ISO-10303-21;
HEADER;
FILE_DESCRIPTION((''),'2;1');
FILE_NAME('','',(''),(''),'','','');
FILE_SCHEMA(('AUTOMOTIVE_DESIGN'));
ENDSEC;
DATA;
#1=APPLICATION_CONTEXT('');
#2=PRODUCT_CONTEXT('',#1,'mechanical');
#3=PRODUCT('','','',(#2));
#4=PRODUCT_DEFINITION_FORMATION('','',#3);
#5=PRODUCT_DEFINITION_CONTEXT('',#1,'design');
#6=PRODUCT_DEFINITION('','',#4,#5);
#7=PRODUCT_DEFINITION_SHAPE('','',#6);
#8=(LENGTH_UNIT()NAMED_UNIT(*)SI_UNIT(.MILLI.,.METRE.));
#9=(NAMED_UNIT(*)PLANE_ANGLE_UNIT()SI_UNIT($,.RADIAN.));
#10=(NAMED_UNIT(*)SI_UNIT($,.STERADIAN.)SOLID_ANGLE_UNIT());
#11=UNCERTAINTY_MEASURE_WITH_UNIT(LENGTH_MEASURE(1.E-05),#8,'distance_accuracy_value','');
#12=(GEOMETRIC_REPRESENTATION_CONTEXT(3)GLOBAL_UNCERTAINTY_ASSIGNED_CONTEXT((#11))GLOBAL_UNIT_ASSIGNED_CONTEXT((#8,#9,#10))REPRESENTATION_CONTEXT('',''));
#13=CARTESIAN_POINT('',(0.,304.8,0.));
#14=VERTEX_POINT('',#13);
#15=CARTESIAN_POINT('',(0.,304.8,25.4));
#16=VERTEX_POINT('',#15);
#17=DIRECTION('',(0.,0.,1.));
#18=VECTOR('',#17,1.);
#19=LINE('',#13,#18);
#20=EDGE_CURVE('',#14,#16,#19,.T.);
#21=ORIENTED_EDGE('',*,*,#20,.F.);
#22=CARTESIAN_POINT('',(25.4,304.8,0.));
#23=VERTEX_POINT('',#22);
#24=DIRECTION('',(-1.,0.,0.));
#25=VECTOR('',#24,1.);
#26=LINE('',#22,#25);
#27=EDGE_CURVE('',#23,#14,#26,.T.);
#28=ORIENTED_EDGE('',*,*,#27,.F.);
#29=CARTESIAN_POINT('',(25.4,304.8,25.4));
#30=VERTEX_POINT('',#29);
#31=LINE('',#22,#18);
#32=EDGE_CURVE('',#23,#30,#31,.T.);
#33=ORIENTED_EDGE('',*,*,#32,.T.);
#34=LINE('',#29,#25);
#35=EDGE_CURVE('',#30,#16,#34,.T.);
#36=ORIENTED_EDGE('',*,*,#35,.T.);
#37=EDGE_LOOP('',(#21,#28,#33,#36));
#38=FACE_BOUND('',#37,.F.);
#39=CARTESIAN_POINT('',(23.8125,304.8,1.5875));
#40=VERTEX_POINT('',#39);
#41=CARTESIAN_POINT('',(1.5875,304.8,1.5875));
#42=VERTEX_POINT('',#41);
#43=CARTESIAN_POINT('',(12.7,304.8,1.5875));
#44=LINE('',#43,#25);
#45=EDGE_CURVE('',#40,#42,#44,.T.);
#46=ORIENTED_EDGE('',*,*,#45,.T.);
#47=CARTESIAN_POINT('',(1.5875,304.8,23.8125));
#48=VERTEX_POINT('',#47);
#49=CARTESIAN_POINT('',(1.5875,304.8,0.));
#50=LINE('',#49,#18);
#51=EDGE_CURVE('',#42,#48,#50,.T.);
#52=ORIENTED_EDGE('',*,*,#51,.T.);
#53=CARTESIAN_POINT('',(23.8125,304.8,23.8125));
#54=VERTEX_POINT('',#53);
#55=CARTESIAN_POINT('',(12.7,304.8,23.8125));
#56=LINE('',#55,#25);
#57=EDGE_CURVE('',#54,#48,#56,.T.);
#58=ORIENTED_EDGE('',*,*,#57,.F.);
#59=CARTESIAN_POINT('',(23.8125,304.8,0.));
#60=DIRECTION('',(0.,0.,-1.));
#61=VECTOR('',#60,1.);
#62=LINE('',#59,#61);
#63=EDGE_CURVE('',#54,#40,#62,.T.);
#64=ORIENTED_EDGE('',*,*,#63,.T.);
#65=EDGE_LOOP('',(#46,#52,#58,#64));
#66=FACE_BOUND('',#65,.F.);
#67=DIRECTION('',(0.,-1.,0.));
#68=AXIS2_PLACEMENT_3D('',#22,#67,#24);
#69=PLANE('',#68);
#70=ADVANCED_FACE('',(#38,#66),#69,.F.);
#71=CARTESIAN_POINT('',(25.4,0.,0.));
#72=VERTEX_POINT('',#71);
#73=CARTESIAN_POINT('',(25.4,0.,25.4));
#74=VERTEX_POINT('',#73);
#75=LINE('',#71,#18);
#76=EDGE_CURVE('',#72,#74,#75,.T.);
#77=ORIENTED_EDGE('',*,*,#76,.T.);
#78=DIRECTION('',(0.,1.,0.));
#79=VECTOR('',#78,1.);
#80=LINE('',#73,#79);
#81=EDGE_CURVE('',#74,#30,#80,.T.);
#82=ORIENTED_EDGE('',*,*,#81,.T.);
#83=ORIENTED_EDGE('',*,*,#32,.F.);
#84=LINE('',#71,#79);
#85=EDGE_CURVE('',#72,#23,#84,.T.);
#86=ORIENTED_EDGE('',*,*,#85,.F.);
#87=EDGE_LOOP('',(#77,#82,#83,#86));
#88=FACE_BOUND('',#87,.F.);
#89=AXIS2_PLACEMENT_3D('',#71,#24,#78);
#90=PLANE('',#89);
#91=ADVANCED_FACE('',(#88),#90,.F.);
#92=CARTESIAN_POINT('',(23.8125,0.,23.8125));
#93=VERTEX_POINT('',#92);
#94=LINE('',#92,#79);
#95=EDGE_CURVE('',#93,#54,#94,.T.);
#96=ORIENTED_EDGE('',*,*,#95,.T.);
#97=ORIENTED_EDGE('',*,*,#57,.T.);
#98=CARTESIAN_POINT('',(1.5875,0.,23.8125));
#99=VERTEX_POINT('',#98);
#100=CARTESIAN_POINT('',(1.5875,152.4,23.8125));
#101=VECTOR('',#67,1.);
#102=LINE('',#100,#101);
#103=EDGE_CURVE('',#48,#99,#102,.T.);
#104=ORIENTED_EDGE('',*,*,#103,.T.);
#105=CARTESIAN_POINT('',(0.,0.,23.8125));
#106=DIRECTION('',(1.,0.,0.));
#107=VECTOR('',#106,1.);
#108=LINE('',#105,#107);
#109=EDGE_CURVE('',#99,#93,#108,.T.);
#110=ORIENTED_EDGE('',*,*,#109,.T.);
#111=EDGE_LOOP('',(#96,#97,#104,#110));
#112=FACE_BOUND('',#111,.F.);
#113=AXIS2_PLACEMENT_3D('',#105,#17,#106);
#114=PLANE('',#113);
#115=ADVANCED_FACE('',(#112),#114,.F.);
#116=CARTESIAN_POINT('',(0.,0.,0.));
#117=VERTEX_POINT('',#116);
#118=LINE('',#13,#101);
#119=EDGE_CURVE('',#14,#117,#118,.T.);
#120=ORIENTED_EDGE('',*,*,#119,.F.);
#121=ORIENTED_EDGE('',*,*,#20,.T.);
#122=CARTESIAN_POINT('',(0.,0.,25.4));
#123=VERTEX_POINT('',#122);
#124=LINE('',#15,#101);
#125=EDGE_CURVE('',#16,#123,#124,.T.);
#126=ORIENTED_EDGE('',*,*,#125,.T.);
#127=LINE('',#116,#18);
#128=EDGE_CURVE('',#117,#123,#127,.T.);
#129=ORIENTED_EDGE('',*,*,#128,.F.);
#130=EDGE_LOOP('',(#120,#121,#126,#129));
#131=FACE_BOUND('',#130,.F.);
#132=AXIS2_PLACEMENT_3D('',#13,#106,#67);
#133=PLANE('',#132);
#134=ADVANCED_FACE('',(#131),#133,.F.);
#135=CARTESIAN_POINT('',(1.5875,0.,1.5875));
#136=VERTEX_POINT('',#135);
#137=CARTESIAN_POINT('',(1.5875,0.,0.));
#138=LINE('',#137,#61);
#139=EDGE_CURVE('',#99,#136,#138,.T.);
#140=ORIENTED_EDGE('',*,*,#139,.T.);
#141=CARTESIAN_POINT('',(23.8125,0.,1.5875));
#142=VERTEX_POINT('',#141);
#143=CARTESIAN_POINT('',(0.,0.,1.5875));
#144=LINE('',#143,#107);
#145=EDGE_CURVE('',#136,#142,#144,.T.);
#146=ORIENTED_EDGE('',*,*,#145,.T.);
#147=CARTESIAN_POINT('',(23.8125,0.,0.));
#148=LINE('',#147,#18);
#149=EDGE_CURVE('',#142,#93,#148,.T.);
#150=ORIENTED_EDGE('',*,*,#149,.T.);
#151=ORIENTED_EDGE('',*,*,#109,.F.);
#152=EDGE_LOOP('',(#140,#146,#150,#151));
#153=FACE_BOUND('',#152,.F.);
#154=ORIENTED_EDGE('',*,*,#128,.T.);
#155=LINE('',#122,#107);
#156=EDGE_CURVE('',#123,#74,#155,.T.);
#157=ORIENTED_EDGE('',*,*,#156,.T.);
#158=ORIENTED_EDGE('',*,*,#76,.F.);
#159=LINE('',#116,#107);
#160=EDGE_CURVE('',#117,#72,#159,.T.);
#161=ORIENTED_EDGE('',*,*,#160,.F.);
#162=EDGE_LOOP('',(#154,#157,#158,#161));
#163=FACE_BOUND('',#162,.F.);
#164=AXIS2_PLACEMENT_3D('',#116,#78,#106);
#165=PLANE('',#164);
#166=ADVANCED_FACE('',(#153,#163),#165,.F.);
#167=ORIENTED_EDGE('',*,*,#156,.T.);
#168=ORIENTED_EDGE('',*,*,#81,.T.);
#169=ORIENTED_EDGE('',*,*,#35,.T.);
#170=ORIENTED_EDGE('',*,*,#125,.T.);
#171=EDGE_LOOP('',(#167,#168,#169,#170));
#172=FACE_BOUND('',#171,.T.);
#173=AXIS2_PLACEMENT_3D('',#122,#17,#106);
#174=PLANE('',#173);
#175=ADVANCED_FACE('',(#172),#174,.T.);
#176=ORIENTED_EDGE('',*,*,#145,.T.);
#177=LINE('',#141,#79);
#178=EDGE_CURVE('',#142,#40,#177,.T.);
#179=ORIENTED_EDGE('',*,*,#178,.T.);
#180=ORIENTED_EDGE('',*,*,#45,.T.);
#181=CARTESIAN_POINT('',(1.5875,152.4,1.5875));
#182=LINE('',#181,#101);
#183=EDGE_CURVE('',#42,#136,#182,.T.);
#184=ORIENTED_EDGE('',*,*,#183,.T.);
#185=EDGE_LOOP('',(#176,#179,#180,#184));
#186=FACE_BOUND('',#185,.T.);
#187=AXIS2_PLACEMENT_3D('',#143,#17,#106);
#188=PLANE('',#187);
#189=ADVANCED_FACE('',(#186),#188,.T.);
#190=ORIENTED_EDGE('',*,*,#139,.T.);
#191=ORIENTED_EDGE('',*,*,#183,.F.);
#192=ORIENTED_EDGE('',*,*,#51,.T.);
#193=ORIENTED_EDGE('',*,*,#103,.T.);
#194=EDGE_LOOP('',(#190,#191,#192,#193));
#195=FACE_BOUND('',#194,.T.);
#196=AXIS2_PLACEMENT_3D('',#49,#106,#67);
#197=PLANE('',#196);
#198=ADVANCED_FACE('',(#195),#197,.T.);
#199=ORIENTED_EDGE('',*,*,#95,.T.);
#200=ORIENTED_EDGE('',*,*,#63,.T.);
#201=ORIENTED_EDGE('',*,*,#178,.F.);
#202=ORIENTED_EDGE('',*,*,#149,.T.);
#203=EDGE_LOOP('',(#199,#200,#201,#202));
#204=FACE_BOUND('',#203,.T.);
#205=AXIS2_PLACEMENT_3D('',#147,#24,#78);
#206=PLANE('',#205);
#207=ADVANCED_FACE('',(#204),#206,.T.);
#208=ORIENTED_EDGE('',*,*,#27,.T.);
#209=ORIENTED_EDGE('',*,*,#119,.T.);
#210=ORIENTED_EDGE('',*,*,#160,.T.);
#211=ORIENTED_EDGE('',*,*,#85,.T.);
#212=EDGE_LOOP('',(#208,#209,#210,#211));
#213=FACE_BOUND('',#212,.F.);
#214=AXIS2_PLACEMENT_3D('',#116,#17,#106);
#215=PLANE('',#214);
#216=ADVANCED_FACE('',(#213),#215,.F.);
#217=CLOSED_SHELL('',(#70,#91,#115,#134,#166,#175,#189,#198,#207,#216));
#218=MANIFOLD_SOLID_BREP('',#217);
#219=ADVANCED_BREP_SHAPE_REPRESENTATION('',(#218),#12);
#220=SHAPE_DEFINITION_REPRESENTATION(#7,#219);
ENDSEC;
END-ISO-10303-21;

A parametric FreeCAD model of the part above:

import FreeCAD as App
import Part
import Sketcher
from FreeCAD import Vector
Q = App.Units.Quantity


def faces_at(feature, points):
    """Names of the faces that lie closest to the given points."""
    faces = feature.Shape.Faces
    near = lambda p: min(range(len(faces)), key=lambda i: faces[i].distToShape(Part.Vertex(*p))[0])
    return sorted({f"Face{near(p) + 1}" for p in points})


def add_polygon(sketch, points):
    """Adds a closed chain of lines whose ends are joined by coincident constraints."""
    first, n = sketch.GeometryCount, len(points)
    for a, b in zip(points, points[1:] + points[:1]):
        sketch.addGeometry(Part.LineSegment(App.Vector(*a, 0), App.Vector(*b, 0)), False)
    for i in range(n):
        sketch.addConstraint(Sketcher.Constraint("Coincident", first + i, 2, first + (i + 1) % n, 1))

doc = App.newDocument("Part")
body = doc.addObject("PartDesign::Body", "Body")

sketch1 = doc.addObject("Sketcher::SketchObject", "Sketch")
body.addObject(sketch1)
sketch1.AttachmentSupport = (doc.XY_Plane, [""])
sketch1.MapMode = "FlatFace"
add_polygon(sketch1, [(0, 305), (0, 0), (25, 0), (25, 305)])
sketch1.addConstraint([
    Sketcher.Constraint("Vertical", 0),
    Sketcher.Constraint("Horizontal", 1),
    Sketcher.Constraint("Vertical", 2),
    Sketcher.Constraint("Horizontal", 3),
    Sketcher.Constraint("Coincident", 0, 2, -1, 1),
    Sketcher.Constraint("DistanceX", 1, 1, 1, 2, Q("1 in")),
    Sketcher.Constraint("DistanceY", 0, 2, 0, 1, Q("12 in")),
])
pad1 = doc.addObject("PartDesign::Pad", "Pad")
body.addObject(pad1)
pad1.Profile = sketch1
pad1.Length = Q("1 in")
doc.recompute()

thickness = doc.addObject("PartDesign::Thickness", "Thickness")
body.addObject(thickness)
thickness.Base = (pad1, faces_at(pad1, [(16.933, 304.8, 8.467), (8.467, 0, 8.467)]))
thickness.Value = Q("0.0625 in")
thickness.Reversed = True
thickness.Join = "Intersection"

doc.recompute()
